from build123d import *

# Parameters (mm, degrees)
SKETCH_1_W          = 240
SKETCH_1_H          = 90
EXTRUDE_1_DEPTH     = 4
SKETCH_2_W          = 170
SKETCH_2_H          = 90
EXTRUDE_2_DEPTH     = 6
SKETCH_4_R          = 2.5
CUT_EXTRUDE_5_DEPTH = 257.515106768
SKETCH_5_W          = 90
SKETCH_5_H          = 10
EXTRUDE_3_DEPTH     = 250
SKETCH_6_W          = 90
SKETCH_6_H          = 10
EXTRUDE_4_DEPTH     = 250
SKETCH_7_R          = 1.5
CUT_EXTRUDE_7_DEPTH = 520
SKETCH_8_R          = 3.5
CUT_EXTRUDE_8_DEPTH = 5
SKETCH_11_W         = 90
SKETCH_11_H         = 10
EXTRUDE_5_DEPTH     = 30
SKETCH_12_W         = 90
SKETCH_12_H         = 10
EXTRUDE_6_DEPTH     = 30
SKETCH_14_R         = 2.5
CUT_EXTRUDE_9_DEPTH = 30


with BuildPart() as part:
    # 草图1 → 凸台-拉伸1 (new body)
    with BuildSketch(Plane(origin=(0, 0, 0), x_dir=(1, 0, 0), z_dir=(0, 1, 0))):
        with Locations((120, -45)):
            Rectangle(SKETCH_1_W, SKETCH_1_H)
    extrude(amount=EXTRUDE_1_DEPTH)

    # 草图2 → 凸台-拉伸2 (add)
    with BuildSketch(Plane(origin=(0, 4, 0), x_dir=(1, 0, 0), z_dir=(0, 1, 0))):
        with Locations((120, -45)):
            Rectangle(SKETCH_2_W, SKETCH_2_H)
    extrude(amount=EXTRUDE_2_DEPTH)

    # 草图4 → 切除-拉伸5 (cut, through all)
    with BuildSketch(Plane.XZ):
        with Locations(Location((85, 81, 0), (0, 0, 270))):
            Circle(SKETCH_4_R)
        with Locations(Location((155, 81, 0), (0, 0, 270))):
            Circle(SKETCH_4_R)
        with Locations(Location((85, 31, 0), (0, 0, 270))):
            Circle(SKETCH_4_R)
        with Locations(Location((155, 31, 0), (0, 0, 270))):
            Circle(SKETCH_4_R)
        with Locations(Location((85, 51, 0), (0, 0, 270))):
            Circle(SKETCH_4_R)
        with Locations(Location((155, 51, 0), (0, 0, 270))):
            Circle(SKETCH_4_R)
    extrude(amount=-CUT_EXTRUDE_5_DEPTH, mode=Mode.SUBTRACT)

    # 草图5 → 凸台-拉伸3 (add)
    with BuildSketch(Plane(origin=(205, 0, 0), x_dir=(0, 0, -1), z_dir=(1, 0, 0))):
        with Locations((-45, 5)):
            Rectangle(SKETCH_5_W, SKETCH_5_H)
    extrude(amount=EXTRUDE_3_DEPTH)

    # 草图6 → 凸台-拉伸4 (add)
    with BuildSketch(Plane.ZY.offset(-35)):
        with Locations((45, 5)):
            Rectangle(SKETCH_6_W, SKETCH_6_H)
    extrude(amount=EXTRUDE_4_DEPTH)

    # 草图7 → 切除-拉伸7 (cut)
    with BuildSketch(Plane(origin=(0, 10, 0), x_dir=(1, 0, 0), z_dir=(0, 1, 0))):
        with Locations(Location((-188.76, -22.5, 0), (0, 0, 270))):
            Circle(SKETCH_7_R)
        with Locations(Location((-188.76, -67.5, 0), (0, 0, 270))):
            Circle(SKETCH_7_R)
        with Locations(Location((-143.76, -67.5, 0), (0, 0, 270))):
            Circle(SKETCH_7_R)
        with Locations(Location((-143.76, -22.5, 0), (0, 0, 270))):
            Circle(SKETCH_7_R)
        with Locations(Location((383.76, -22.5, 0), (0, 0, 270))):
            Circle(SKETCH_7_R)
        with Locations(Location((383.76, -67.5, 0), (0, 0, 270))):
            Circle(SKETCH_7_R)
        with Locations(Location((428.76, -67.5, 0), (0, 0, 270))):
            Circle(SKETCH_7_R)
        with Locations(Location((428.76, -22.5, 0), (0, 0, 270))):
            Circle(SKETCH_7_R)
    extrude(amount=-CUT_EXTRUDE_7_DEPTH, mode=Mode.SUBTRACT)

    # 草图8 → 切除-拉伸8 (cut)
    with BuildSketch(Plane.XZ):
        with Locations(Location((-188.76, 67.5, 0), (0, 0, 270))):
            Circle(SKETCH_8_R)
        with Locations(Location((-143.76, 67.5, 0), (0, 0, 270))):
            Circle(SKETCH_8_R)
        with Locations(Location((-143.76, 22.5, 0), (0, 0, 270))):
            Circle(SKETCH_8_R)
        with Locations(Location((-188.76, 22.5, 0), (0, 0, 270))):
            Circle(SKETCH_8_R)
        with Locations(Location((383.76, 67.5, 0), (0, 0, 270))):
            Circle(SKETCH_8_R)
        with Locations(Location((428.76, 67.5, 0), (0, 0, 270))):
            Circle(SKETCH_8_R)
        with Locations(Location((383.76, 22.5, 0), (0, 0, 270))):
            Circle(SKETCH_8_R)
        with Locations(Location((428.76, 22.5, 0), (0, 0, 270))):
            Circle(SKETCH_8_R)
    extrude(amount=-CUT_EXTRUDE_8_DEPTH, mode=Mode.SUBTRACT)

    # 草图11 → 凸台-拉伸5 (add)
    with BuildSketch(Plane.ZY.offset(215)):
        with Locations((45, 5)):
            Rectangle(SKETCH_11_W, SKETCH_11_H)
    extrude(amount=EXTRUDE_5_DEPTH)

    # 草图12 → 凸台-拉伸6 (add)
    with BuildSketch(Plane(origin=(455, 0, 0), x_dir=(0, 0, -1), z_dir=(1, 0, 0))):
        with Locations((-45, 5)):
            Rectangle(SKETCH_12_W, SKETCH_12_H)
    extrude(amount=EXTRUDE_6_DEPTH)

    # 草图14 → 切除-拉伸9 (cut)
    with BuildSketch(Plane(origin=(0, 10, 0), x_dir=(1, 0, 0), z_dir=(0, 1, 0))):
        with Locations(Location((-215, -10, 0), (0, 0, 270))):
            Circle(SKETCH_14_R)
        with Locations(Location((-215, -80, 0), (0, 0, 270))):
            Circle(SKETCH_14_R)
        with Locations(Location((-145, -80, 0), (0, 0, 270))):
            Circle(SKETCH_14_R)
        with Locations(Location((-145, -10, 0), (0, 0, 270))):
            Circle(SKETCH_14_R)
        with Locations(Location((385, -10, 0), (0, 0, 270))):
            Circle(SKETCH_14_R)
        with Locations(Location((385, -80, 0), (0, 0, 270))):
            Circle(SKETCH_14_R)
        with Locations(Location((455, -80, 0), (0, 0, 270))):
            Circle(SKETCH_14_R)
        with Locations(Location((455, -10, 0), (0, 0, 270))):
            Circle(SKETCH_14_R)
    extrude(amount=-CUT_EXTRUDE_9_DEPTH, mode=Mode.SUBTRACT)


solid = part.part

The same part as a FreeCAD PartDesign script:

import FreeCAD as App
import Part
import Sketcher
from FreeCAD import Vector
Q = App.Units.Quantity


def add_polygon(sketch, points):
    """Adds a closed chain of lines whose ends are joined by coincident constraints."""
    first, n = sketch.GeometryCount, len(points)
    for a, b in zip(points, points[1:] + points[:1]):
        sketch.addGeometry(Part.LineSegment(App.Vector(*a, 0), App.Vector(*b, 0)), False)
    for i in range(n):
        sketch.addConstraint(Sketcher.Constraint("Coincident", first + i, 2, first + (i + 1) % n, 1))

doc = App.newDocument("Part")
body = doc.addObject("PartDesign::Body", "Body")

# Sketch on XZ plane
sketch1 = body.newObject("Sketcher::SketchObject", "Sketch")
sketch1.AttachmentSupport = (doc.getObject("XZ_Plane"), [""])
sketch1.MapMode = "FlatFace"
add_polygon(sketch1, [(0, 0), (0, 90), (240, 90), (240, 0)])  # lines 0-3
sketch1.addConstraint([
    Sketcher.Constraint("Vertical", 0),
    Sketcher.Constraint("Horizontal", 1),
    Sketcher.Constraint("Vertical", 2),
    Sketcher.Constraint("Horizontal", 3),
    Sketcher.Constraint("Coincident", 3, 2, -1, 1),
    Sketcher.Constraint("DistanceX", 1, 1, 1, 2, Q("240 mm")),
    Sketcher.Constraint("DistanceY", 0, 1, 0, 2, Q("90 mm")),
])
pad1 = body.newObject("PartDesign::Pad", "Pad")
pad1.Profile = sketch1
pad1.Length = 4
pad1.Reversed = True

# Sketch on XZ plane
sketch2 = body.newObject("Sketcher::SketchObject", "Sketch001")
sketch2.AttachmentSupport = (doc.getObject("XZ_Plane"), [""])
sketch2.MapMode = "FlatFace"
sketch2.AttachmentOffset = App.Placement(Vector(0, 0, -4), App.Rotation())
add_polygon(sketch2, [(35, 0), (35, 90), (205, 90), (205, 0)])  # lines 0-3
sketch2.addConstraint([
    Sketcher.Constraint("Vertical", 0),
    Sketcher.Constraint("Horizontal", 1),
    Sketcher.Constraint("Vertical", 2),
    Sketcher.Constraint("Horizontal", 3),
    Sketcher.Constraint("PointOnObject", 2, 2, -1),
    Sketcher.Constraint("DistanceX", 1, 1, 1, 2, Q("170 mm")),
    Sketcher.Constraint("DistanceY", 0, 1, 0, 2, Q("90 mm")),
    Sketcher.Constraint("DistanceX", -1, 1, 0, 2, Q("35 mm")),
])
pad2 = body.newObject("PartDesign::Pad", "Pad001")
pad2.Profile = sketch2
pad2.Length = 6
pad2.Reversed = True

# Sketch on XZ plane
sketch3 = body.newObject("Sketcher::SketchObject", "Sketch002")
sketch3.AttachmentSupport = (doc.getObject("XZ_Plane"), [""])
sketch3.MapMode = "FlatFace"
sketch3.addGeometry([
    Part.Circle(Vector(85, 81, 0), Vector(0, 0, 1), 2.5),  # 0
    Part.Circle(Vector(155, 81, 0), Vector(0, 0, 1), 2.5),  # 1
    Part.Circle(Vector(85, 31, 0), Vector(0, 0, 1), 2.5),  # 2
    Part.Circle(Vector(155, 31, 0), Vector(0, 0, 1), 2.5),  # 3
    Part.Circle(Vector(85, 51, 0), Vector(0, 0, 1), 2.5),  # 4
    Part.Circle(Vector(155, 51, 0), Vector(0, 0, 1), 2.5),  # 5
], False)
sketch3.addConstraint([
    Sketcher.Constraint("Equal", 0, 1),
    Sketcher.Constraint("Equal", 1, 2),
    Sketcher.Constraint("Equal", 2, 3),
    Sketcher.Constraint("Equal", 3, 4),
    Sketcher.Constraint("Equal", 4, 5),
    Sketcher.Constraint("Horizontal", 0, 3, 1, 3),
    Sketcher.Constraint("Horizontal", 2, 3, 3, 3),
    Sketcher.Constraint("Horizontal", 4, 3, 5, 3),
    Sketcher.Constraint("Vertical", 0, 3, 2, 3),
    Sketcher.Constraint("Vertical", 1, 3, 3, 3),
    Sketcher.Constraint("Vertical", 2, 3, 4, 3),
    Sketcher.Constraint("Vertical", 3, 3, 5, 3),
    Sketcher.Constraint("Diameter", 0, Q("5 mm")),
    Sketcher.Constraint("DistanceX", -1, 1, 0, 3, Q("85 mm")),
    Sketcher.Constraint("DistanceY", -1, 1, 0, 3, Q("81 mm")),
    Sketcher.Constraint("DistanceX", -1, 1, 1, 3, Q("155 mm")),
    Sketcher.Constraint("DistanceY", -1, 1, 2, 3, Q("31 mm")),
    Sketcher.Constraint("DistanceY", -1, 1, 4, 3, Q("51 mm")),
])
pocket1 = body.newObject("PartDesign::Pocket", "Pocket")
pocket1.Profile = sketch3
pocket1.Type = "ThroughAll"

# Sketch on YZ plane
sketch4 = body.newObject("Sketcher::SketchObject", "Sketch003")
sketch4.AttachmentSupport = (doc.getObject("YZ_Plane"), [""])
sketch4.MapMode = "FlatFace"
sketch4.AttachmentOffset = App.Placement(Vector(0, 0, 205), App.Rotation())
add_polygon(sketch4, [(10, 90), (0, 90), (0, 0), (10, 0)])  # lines 0-3
sketch4.addConstraint([
    Sketcher.Constraint("Horizontal", 0),
    Sketcher.Constraint("Vertical", 1),
    Sketcher.Constraint("Horizontal", 2),
    Sketcher.Constraint("Vertical", 3),
    Sketcher.Constraint("Coincident", 1, 2, -1, 1),
    Sketcher.Constraint("DistanceX", 0, 2, 0, 1, Q("10 mm")),
    Sketcher.Constraint("DistanceY", 1, 2, 1, 1, Q("90 mm")),
])
pad3 = body.newObject("PartDesign::Pad", "Pad002")
pad3.Profile = sketch4
pad3.Length = 250

# Sketch on YZ plane
sketch5 = body.newObject("Sketcher::SketchObject", "Sketch004")
sketch5.AttachmentSupport = (doc.getObject("YZ_Plane"), [""])
sketch5.MapMode = "FlatFace"
sketch5.AttachmentOffset = App.Placement(Vector(0, 0, 35), App.Rotation())
add_polygon(sketch5, [(10, 0), (0, 0), (0, 90), (10, 90)])  # lines 0-3
sketch5.addConstraint([
    Sketcher.Constraint("Horizontal", 0),
    Sketcher.Constraint("Vertical", 1),
    Sketcher.Constraint("Horizontal", 2),
    Sketcher.Constraint("Vertical", 3),
    Sketcher.Constraint("Coincident", 0, 2, -1, 1),
    Sketcher.Constraint("DistanceX", 0, 2, 0, 1, Q("10 mm")),
    Sketcher.Constraint("DistanceY", 1, 1, 1, 2, Q("90 mm")),
])
pad4 = body.newObject("PartDesign::Pad", "Pad003")
pad4.Profile = sketch5
pad4.Length = 250
pad4.Reversed = True

# Sketch on XZ plane
sketch6 = body.newObject("Sketcher::SketchObject", "Sketch005")
sketch6.AttachmentSupport = (doc.getObject("XZ_Plane"), [""])
sketch6.MapMode = "FlatFace"
sketch6.AttachmentOffset = App.Placement(Vector(0, 0, -10), App.Rotation())
sketch6.addGeometry([
    Part.Circle(Vector(-188.8, 22.5, 0), Vector(0, 0, 1), 1.5),  # 0
    Part.Circle(Vector(-188.8, 67.5, 0), Vector(0, 0, 1), 1.5),  # 1
    Part.Circle(Vector(-143.8, 67.5, 0), Vector(0, 0, 1), 1.5),  # 2
    Part.Circle(Vector(-143.8, 22.5, 0), Vector(0, 0, 1), 1.5),  # 3
    Part.Circle(Vector(383.8, 22.5, 0), Vector(0, 0, 1), 1.5),  # 4
    Part.Circle(Vector(383.8, 67.5, 0), Vector(0, 0, 1), 1.5),  # 5
    Part.Circle(Vector(428.8, 67.5, 0), Vector(0, 0, 1), 1.5),  # 6
    Part.Circle(Vector(428.8, 22.5, 0), Vector(0, 0, 1), 1.5),  # 7
], False)
sketch6.addConstraint([
    Sketcher.Constraint("Equal", 0, 1),
    Sketcher.Constraint("Equal", 1, 2),
    Sketcher.Constraint("Equal", 2, 3),
    Sketcher.Constraint("Equal", 3, 4),
    Sketcher.Constraint("Equal", 4, 5),
    Sketcher.Constraint("Equal", 5, 6),
    Sketcher.Constraint("Equal", 6, 7),
    Sketcher.Constraint("Horizontal", 1, 3, 2, 3),
    Sketcher.Constraint("Horizontal", 0, 3, 3, 3),
    Sketcher.Constraint("Horizontal", 3, 3, 4, 3),
    Sketcher.Constraint("Horizontal", 2, 3, 5, 3),
    Sketcher.Constraint("Horizontal", 5, 3, 6, 3),
    Sketcher.Constraint("Horizontal", 4, 3, 7, 3),
    Sketcher.Constraint("Vertical", 0, 3, 1, 3),
    Sketcher.Constraint("Vertical", 2, 3, 3, 3),
    Sketcher.Constraint("Vertical", 4, 3, 5, 3),
    Sketcher.Constraint("Vertical", 6, 3, 7, 3),
    Sketcher.Constraint("Diameter", 0, Q("3 mm")),
    Sketcher.Constraint("DistanceY", 0, 3, 1, 3, Q("45 mm")),
    Sketcher.Constraint("DistanceX", 1, 3, 2, 3, Q("45 mm")),
    Sketcher.Constraint("DistanceX", 5, 3, 6, 3, Q("45 mm")),
    Sketcher.Constraint("DistanceY", -1, 1, 0, 3, Q("22.5 mm")),
    Sketcher.Constraint("DistanceX", 0, 3, -1, 1, Q("188.76 mm")),
    Sketcher.Constraint("DistanceX", -1, 1, 4, 3, Q("383.76 mm")),
])
pocket2 = body.newObject("PartDesign::Pocket", "Pocket001")
pocket2.Profile = sketch6
pocket2.Length = 520
pocket2.Reversed = True

# Sketch on XZ plane
sketch7 = body.newObject("Sketcher::SketchObject", "Sketch006")
sketch7.AttachmentSupport = (doc.getObject("XZ_Plane"), [""])
sketch7.MapMode = "FlatFace"
sketch7.addGeometry([
    Part.Circle(Vector(-188.8, 67.5, 0), Vector(0, 0, 1), 3.5),  # 0
    Part.Circle(Vector(-143.8, 67.5, 0), Vector(0, 0, 1), 3.5),  # 1
    Part.Circle(Vector(-143.8, 22.5, 0), Vector(0, 0, 1), 3.5),  # 2
    Part.Circle(Vector(-188.8, 22.5, 0), Vector(0, 0, 1), 3.5),  # 3
    Part.Circle(Vector(383.8, 67.5, 0), Vector(0, 0, 1), 3.5),  # 4
    Part.Circle(Vector(428.8, 67.5, 0), Vector(0, 0, 1), 3.5),  # 5
    Part.Circle(Vector(383.8, 22.5, 0), Vector(0, 0, 1), 3.5),  # 6
    Part.Circle(Vector(428.8, 22.5, 0), Vector(0, 0, 1), 3.5),  # 7
], False)
sketch7.addConstraint([
    Sketcher.Constraint("Equal", 0, 1),
    Sketcher.Constraint("Equal", 1, 2),
    Sketcher.Constraint("Equal", 2, 3),
    Sketcher.Constraint("Equal", 3, 4),
    Sketcher.Constraint("Equal", 4, 5),
    Sketcher.Constraint("Equal", 5, 6),
    Sketcher.Constraint("Equal", 6, 7),
    Sketcher.Constraint("Horizontal", 0, 3, 1, 3),
    Sketcher.Constraint("Horizontal", 2, 3, 3, 3),
    Sketcher.Constraint("Horizontal", 1, 3, 4, 3),
    Sketcher.Constraint("Horizontal", 4, 3, 5, 3),
    Sketcher.Constraint("Horizontal", 3, 3, 6, 3),
    Sketcher.Constraint("Horizontal", 6, 3, 7, 3),
    Sketcher.Constraint("Vertical", 1, 3, 2, 3),
    Sketcher.Constraint("Vertical", 0, 3, 3, 3),
    Sketcher.Constraint("Vertical", 4, 3, 6, 3),
    Sketcher.Constraint("Vertical", 5, 3, 7, 3),
    Sketcher.Constraint("Diameter", 0, Q("7 mm")),
    Sketcher.Constraint("DistanceX", 0, 3, 1, 3, Q("45 mm")),
    Sketcher.Constraint("DistanceY", 2, 3, 1, 3, Q("45 mm")),
    Sketcher.Constraint("DistanceX", 4, 3, 5, 3, Q("45 mm")),
    Sketcher.Constraint("DistanceY", -1, 1, 0, 3, Q("67.5 mm")),
    Sketcher.Constraint("DistanceX", 0, 3, -1, 1, Q("188.76 mm")),
    Sketcher.Constraint("DistanceX", -1, 1, 4, 3, Q("383.76 mm")),
])
pocket3 = body.newObject("PartDesign::Pocket", "Pocket002")
pocket3.Profile = sketch7
pocket3.Length = 5

# Sketch on YZ plane
sketch8 = body.newObject("Sketcher::SketchObject", "Sketch007")
sketch8.AttachmentSupport = (doc.getObject("YZ_Plane"), [""])
sketch8.MapMode = "FlatFace"
sketch8.AttachmentOffset = App.Placement(Vector(0, 0, -215), App.Rotation())
add_polygon(sketch8, [(10, 0), (0, 0), (0, 90), (10, 90)])  # lines 0-3
sketch8.addConstraint([
    Sketcher.Constraint("Horizontal", 0),
    Sketcher.Constraint("Vertical", 1),
    Sketcher.Constraint("Horizontal", 2),
    Sketcher.Constraint("Vertical", 3),
    Sketcher.Constraint("Coincident", 0, 2, -1, 1),
    Sketcher.Constraint("DistanceX", 0, 2, 0, 1, Q("10 mm")),
    Sketcher.Constraint("DistanceY", 1, 1, 1, 2, Q("90 mm")),
])
pad5 = body.newObject("PartDesign::Pad", "Pad004")
pad5.Profile = sketch8
pad5.Length = 30
pad5.Reversed = True

# Sketch on YZ plane
sketch9 = body.newObject("Sketcher::SketchObject", "Sketch008")
sketch9.AttachmentSupport = (doc.getObject("YZ_Plane"), [""])
sketch9.MapMode = "FlatFace"
sketch9.AttachmentOffset = App.Placement(Vector(0, 0, 455), App.Rotation())
add_polygon(sketch9, [(10, 90), (0, 90), (0, 0), (10, 0)])  # lines 0-3
sketch9.addConstraint([
    Sketcher.Constraint("Horizontal", 0),
    Sketcher.Constraint("Vertical", 1),
    Sketcher.Constraint("Horizontal", 2),
    Sketcher.Constraint("Vertical", 3),
    Sketcher.Constraint("Coincident", 1, 2, -1, 1),
    Sketcher.Constraint("DistanceX", 0, 2, 0, 1, Q("10 mm")),
    Sketcher.Constraint("DistanceY", 1, 2, 1, 1, Q("90 mm")),
])
pad6 = body.newObject("PartDesign::Pad", "Pad005")
pad6.Profile = sketch9
pad6.Length = 30

# Sketch on XZ plane
sketch10 = body.newObject("Sketcher::SketchObject", "Sketch009")
sketch10.AttachmentSupport = (doc.getObject("XZ_Plane"), [""])
sketch10.MapMode = "FlatFace"
sketch10.AttachmentOffset = App.Placement(Vector(0, 0, -10), App.Rotation())
sketch10.addGeometry([
    Part.Circle(Vector(-215, 10, 0), Vector(0, 0, 1), 2.5),  # 0
    Part.Circle(Vector(-215, 80, 0), Vector(0, 0, 1), 2.5),  # 1
    Part.Circle(Vector(-145, 80, 0), Vector(0, 0, 1), 2.5),  # 2
    Part.Circle(Vector(-145, 10, 0), Vector(0, 0, 1), 2.5),  # 3
    Part.Circle(Vector(385, 10, 0), Vector(0, 0, 1), 2.5),  # 4
    Part.Circle(Vector(385, 80, 0), Vector(0, 0, 1), 2.5),  # 5
    Part.Circle(Vector(455, 80, 0), Vector(0, 0, 1), 2.5),  # 6
    Part.Circle(Vector(455, 10, 0), Vector(0, 0, 1), 2.5),  # 7
], False)
sketch10.addConstraint([
    Sketcher.Constraint("Equal", 0, 1),
    Sketcher.Constraint("Equal", 1, 2),
    Sketcher.Constraint("Equal", 2, 3),
    Sketcher.Constraint("Equal", 3, 4),
    Sketcher.Constraint("Equal", 4, 5),
    Sketcher.Constraint("Equal", 5, 6),
    Sketcher.Constraint("Equal", 6, 7),
    Sketcher.Constraint("Horizontal", 1, 3, 2, 3),
    Sketcher.Constraint("Horizontal", 0, 3, 3, 3),
    Sketcher.Constraint("Horizontal", 3, 3, 4, 3),
    Sketcher.Constraint("Horizontal", 2, 3, 5, 3),
    Sketcher.Constraint("Horizontal", 5, 3, 6, 3),
    Sketcher.Constraint("Horizontal", 4, 3, 7, 3),
    Sketcher.Constraint("Vertical", 0, 3, 1, 3),
    Sketcher.Constraint("Vertical", 2, 3, 3, 3),
    Sketcher.Constraint("Vertical", 4, 3, 5, 3),
    Sketcher.Constraint("Vertical", 6, 3, 7, 3),
    Sketcher.Constraint("Diameter", 0, Q("5 mm")),
    Sketcher.Constraint("DistanceX", 0, 3, -1, 1, Q("215 mm")),
    Sketcher.Constraint("DistanceY", -1, 1, 0, 3, Q("10 mm")),
    Sketcher.Constraint("DistanceY", -1, 1, 1, 3, Q("80 mm")),
    Sketcher.Constraint("DistanceX", 2, 3, -1, 1, Q("145 mm")),
    Sketcher.Constraint("DistanceX", -1, 1, 4, 3, Q("385 mm")),
    Sketcher.Constraint("DistanceX", -1, 1, 6, 3, Q("455 mm")),
])
pocket4 = body.newObject("PartDesign::Pocket", "Pocket003")
pocket4.Profile = sketch10
pocket4.Length = 30
pocket4.Reversed = True

doc.recompute()
